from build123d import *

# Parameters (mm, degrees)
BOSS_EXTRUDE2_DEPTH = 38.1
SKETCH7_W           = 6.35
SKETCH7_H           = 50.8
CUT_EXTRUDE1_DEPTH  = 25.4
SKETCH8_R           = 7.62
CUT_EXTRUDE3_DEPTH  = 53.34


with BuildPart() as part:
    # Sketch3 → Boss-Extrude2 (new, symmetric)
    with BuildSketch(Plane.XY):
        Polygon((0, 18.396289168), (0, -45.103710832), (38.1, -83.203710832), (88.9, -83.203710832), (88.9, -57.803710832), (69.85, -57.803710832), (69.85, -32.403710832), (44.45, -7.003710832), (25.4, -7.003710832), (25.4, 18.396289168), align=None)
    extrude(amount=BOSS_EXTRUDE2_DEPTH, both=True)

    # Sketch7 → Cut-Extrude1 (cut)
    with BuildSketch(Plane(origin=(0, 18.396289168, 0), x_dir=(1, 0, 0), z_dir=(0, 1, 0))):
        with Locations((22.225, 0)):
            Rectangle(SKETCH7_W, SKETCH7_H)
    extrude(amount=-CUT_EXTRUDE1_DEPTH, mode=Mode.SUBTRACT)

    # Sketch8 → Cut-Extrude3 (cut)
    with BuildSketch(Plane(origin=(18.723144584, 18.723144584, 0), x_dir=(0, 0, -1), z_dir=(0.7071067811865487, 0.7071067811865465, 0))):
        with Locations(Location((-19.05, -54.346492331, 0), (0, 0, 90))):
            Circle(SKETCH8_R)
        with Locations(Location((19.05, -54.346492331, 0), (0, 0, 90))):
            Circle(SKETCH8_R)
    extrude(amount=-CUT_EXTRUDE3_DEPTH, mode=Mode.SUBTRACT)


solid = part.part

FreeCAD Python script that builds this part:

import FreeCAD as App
import Part
import Sketcher

V = App.Vector
Q = App.Units.Quantity


def add_polygon(sketch, points):
    """Adds a closed chain of lines whose ends are joined by coincident constraints."""
    first, n = sketch.GeometryCount, len(points)
    for a, b in zip(points, points[1:] + points[:1]):
        sketch.addGeometry(Part.LineSegment(App.Vector(*a, 0), App.Vector(*b, 0)), False)
    for i in range(n):
        sketch.addConstraint(Sketcher.Constraint("Coincident", first + i, 2, first + (i + 1) % n, 1))

doc = App.newDocument("Part")
params = doc.addObject("Spreadsheet::Sheet", "Params")
for row, (alias, value) in enumerate([
    ("sketch1_width", "2 in"),
    ("sketch1_width2", "1 in"),
    ("sketch1_height", "2.5 in"),
    ("pad1_length", "3 in"),
    ("sketch2_height", "2 in"),
    ("sketch2_width", "0.25 in"),
    ("pocket1_length", "1 in"),
    ("sketch3_diameter", "0.6 in"),
    ("pocket2_length", "2.1 in"),
], start=1):
    params.set(f"A{row}", alias)
    params.set(f"B{row}", "=" + value)
    params.setAlias(f"B{row}", alias)

body = doc.addObject("PartDesign::Body", "Body")

# Sketch on XY plane
sketch1 = body.newObject("Sketcher::SketchObject", "Sketch")
sketch1.AttachmentSupport = (doc.getObject("XY_Plane"), [""])
sketch1.MapMode = "FlatFace"
add_polygon(sketch1, [(0, 18), (0, -45), (38, -83), (89, -83), (89, -58), (70, -58), (70, -32), (44, -7), (25, -7), (25, 18)])  # lines 0-9
sketch1.addConstraint(Sketcher.Constraint("Vertical", 0))
sketch1.addConstraint(Sketcher.Constraint("Horizontal", 2))
sketch1.addConstraint(Sketcher.Constraint("Vertical", 3))
sketch1.addConstraint(Sketcher.Constraint("Horizontal", 4))
sketch1.addConstraint(Sketcher.Constraint("Vertical", 5))
sketch1.addConstraint(Sketcher.Constraint("Horizontal", 7))
sketch1.addConstraint(Sketcher.Constraint("Vertical", 8))
sketch1.addConstraint(Sketcher.Constraint("Horizontal", 9))
sketch1.addConstraint(Sketcher.Constraint("PointOnObject", 0, 2, -2))
sketch1.addConstraint(Sketcher.Constraint("Parallel", 1, 6))
sketch1.addConstraint(Sketcher.Constraint("Equal", 4, 7))
sketch1.addConstraint(Sketcher.Constraint("Equal", 9, 3))
sketch1.addConstraint(Sketcher.Constraint("Equal", 3, 5))
sketch1.addConstraint(Sketcher.Constraint("Equal", 5, 8))
sketch1.addConstraint(Sketcher.Constraint("DistanceX", 2, 1, 2, 2, Q("2 in")))
sketch1.addConstraint(Sketcher.Constraint("DistanceX", 9, 2, 9, 1, Q("1 in")))
sketch1.addConstraint(Sketcher.Constraint("DistanceY", 0, 2, 0, 1, Q("2.5 in")))
sketch1.addConstraint(Sketcher.Constraint("Angle", 1, Q("-45 deg")))
sketch1.addConstraint(Sketcher.Constraint("DistanceX", 6, 2, 5, 2, Q("1 in")))
sketch1.addConstraint(Sketcher.Constraint("DistanceY", 0, 2, -1, 1, Q("45.103711 mm")))
sketch1.setExpression("Constraints[24]", "Params.sketch1_width")
sketch1.setExpression("Constraints[25]", "Params.sketch1_width2")
sketch1.setExpression("Constraints[26]", "Params.sketch1_height")
pad1 = body.newObject("PartDesign::Pad", "Pad")
pad1.Profile = sketch1
pad1.setExpression("Length", "Params.pad1_length")
pad1.Midplane = True

# Sketch on XZ plane
sketch2 = body.newObject("Sketcher::SketchObject", "Sketch001")
sketch2.AttachmentSupport = (doc.getObject("XZ_Plane"), [""])
sketch2.MapMode = "FlatFace"
sketch2.AttachmentOffset = App.Placement(V(0, 0, -18.396289), App.Rotation())
add_polygon(sketch2, [(19, -25), (19, 25), (25, 25), (25, -25)])  # lines 0-3
sketch2.addConstraint(Sketcher.Constraint("Vertical", 0))
sketch2.addConstraint(Sketcher.Constraint("Horizontal", 1))
sketch2.addConstraint(Sketcher.Constraint("Vertical", 2))
sketch2.addConstraint(Sketcher.Constraint("Horizontal", 3))
sketch2.addConstraint(Sketcher.Constraint("DistanceY", 0, 1, 0, 2, Q("2 in")))
sketch2.addConstraint(Sketcher.Constraint("DistanceY", -1, 1, 0, 2, Q("1 in")))
sketch2.addConstraint(Sketcher.Constraint("DistanceX", -1, 1, 1, 2, Q("1 in")))
sketch2.addConstraint(Sketcher.Constraint("DistanceX", 1, 1, 1, 2, Q("0.25 in")))
sketch2.setExpression("Constraints[8]", "Params.sketch2_height")
sketch2.setExpression("Constraints[11]", "Params.sketch2_width")
pocket1 = body.newObject("PartDesign::Pocket", "Pocket")
pocket1.Profile = sketch2
pocket1.setExpression("Length", "Params.pocket1_length")
pocket1.Reversed = True

# Sketch on an angled plane
sketch3 = body.newObject("Sketcher::SketchObject", "Sketch002")
sketch3.Placement = App.Placement(V(18.723145, 18.723145, 0), App.Rotation(V(0, 0, -1), V(-0.707106781, 0.707106781, 0), V(0.707106781, 0.707106781, 0), "ZXY"))
sketch3.addGeometry(Part.Circle(V(-19, -54, 0), V(0, 0, 1), 8), False)
sketch3.addGeometry(Part.Circle(V(19, -54, 0), V(0, 0, 1), 8), False)
sketch3.addConstraint(Sketcher.Constraint("Equal", 0, 1))
sketch3.addConstraint(Sketcher.Constraint("Symmetric", 0, 3, 1, 3, -2))
sketch3.addConstraint(Sketcher.Constraint("Diameter", 0, Q("0.6 in")))
sketch3.addConstraint(Sketcher.Constraint("DistanceX", 0, 3, 1, 3, Q("1.5 in")))
sketch3.addConstraint(Sketcher.Constraint("DistanceY", 0, 3, -1, 1, Q("54.346492 mm")))
sketch3.setExpression("Constraints[2]", "Params.sketch3_diameter")
pocket2 = body.newObject("PartDesign::Pocket", "Pocket001")
pocket2.Profile = sketch3
pocket2.setExpression("Length", "Params.pocket2_length")

doc.recompute()
